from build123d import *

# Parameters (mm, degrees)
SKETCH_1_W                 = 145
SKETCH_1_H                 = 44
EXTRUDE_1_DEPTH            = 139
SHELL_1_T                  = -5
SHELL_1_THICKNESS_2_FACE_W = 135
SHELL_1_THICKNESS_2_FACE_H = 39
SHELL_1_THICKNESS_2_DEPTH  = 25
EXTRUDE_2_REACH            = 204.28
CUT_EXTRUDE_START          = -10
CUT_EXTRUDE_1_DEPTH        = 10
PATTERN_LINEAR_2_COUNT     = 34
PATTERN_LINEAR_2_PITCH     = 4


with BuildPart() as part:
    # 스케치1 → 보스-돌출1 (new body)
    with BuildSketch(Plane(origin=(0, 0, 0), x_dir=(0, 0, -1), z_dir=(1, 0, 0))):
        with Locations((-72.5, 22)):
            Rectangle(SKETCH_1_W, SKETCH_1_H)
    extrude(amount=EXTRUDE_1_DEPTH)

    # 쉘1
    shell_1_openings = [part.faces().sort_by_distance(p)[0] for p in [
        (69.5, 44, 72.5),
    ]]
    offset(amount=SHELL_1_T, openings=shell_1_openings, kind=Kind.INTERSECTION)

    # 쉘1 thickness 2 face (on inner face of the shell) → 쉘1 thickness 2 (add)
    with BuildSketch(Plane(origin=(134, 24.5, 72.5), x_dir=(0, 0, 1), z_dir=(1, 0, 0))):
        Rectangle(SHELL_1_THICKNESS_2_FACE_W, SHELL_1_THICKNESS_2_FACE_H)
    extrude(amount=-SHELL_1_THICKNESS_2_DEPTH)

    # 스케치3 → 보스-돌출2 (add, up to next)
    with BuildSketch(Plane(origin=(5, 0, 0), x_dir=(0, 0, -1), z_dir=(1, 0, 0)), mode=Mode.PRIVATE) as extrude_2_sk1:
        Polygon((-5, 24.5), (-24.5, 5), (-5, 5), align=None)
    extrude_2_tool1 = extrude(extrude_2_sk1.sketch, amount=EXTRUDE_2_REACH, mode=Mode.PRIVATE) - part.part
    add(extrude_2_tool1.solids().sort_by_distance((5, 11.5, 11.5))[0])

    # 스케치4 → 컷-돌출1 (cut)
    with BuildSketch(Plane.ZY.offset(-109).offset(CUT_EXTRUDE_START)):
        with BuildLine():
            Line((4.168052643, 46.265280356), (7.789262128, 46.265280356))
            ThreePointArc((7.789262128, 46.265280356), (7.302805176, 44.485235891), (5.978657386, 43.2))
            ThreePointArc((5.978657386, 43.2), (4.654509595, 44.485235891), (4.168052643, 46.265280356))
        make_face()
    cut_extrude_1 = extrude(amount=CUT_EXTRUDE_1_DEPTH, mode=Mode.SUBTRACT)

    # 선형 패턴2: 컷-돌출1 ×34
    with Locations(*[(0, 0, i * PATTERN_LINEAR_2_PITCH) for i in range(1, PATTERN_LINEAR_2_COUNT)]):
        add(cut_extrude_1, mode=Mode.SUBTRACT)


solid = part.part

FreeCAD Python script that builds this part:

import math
import FreeCAD as App
import Part
import Sketcher

V = App.Vector


def faces_at(feature, points):
    """Names of the faces that lie closest to the given points."""
    faces = feature.Shape.Faces
    near = lambda p: min(range(len(faces)), key=lambda i: faces[i].distToShape(Part.Vertex(*p))[0])
    return sorted({f"Face{near(p) + 1}" for p in points})


def add_polygon(sketch, points):
    """Adds a closed chain of lines whose ends are joined by coincident constraints."""
    first, n = sketch.GeometryCount, len(points)
    for a, b in zip(points, points[1:] + points[:1]):
        sketch.addGeometry(Part.LineSegment(App.Vector(*a, 0), App.Vector(*b, 0)), False)
    for i in range(n):
        sketch.addConstraint(Sketcher.Constraint("Coincident", first + i, 2, first + (i + 1) % n, 1))

doc = App.newDocument("Part")
params = doc.addObject("Spreadsheet::Sheet", "Params")
for row, (alias, value) in enumerate([
    ("sketch1_width", "44 mm"),
    ("sketch1_height", "145 mm"),
    ("pad1_length", "139 mm"),
    ("thickness_wall", "5 mm"),
    ("sketch2_width", "39 mm"),
    ("sketch2_height", "135 mm"),
    ("pad2_length", "25 mm"),
    ("sketch3_width", "19.5 mm"),
    ("sketch4_radius", "3.5 mm"),
    ("pocket1_length", "10 mm"),
    ("linearpattern_pitch", "4 mm"),
], start=1):
    params.set(f"A{row}", alias)
    params.set(f"B{row}", "=" + value)
    params.setAlias(f"B{row}", alias)

body = doc.addObject("PartDesign::Body", "Body")

sketch1 = body.newObject("Sketcher::SketchObject", "Sketch")
sketch1.AttachmentSupport = (doc.getObject("YZ_Plane"), [""])
sketch1.MapMode = "FlatFace"
add_polygon(sketch1, [(44, 145), (0, 145), (0, 0), (44, 0)])
sketch1.addConstraint([
    Sketcher.Constraint("Horizontal", 0),
    Sketcher.Constraint("Vertical", 1),
    Sketcher.Constraint("Horizontal", 2),
    Sketcher.Constraint("Vertical", 3),
    Sketcher.Constraint("Coincident", 1, 2, -1, 1),
    Sketcher.Constraint("DistanceX", 0, 2, 0, 1, 44.0),
    Sketcher.Constraint("DistanceY", 1, 2, 1, 1, 145.0),
])
sketch1.setExpression("Constraints[9]", "Params.sketch1_width")
sketch1.setExpression("Constraints[10]", "Params.sketch1_height")
pad1 = body.newObject("PartDesign::Pad", "Pad")
pad1.Profile = sketch1
pad1.setExpression("Length", "Params.pad1_length")
doc.recompute()

thickness = body.newObject("PartDesign::Thickness", "Thickness")
thickness.Base = (pad1, faces_at(pad1, [(69.5, 44, 72.5)]))
thickness.setExpression("Value", "Params.thickness_wall")
thickness.Reversed = True
thickness.Join = "Intersection"

sketch2 = body.newObject("Sketcher::SketchObject", "Sketch001")
sketch2.AttachmentSupport = (doc.getObject("YZ_Plane"), [""])
sketch2.MapMode = "FlatFace"
sketch2.AttachmentOffset = App.Placement(V(0, 0, 134), App.Rotation())
add_polygon(sketch2, [(5, 5), (44, 5), (44, 140), (5, 140)])
sketch2.addConstraint([
    Sketcher.Constraint("Horizontal", 0),
    Sketcher.Constraint("Vertical", 1),
    Sketcher.Constraint("Horizontal", 2),
    Sketcher.Constraint("Vertical", 3),
    Sketcher.Constraint("DistanceX", 0, 1, 0, 2, 39.0),
    Sketcher.Constraint("DistanceY", 1, 1, 1, 2, 135.0),
    Sketcher.Constraint("DistanceX", -1, 1, 0, 2, 44.0),
    Sketcher.Constraint("DistanceY", -1, 1, 0, 2, 5.0),
])
sketch2.setExpression("Constraints[8]", "Params.sketch2_width")
sketch2.setExpression("Constraints[9]", "Params.sketch2_height")
pad2 = body.newObject("PartDesign::Pad", "Pad001")
pad2.Profile = sketch2
pad2.setExpression("Length", "Params.pad2_length")
pad2.Reversed = True

sketch3 = body.newObject("Sketcher::SketchObject", "Sketch002")
sketch3.AttachmentSupport = (doc.getObject("YZ_Plane"), [""])
sketch3.MapMode = "FlatFace"
sketch3.AttachmentOffset = App.Placement(V(0, 0, 5), App.Rotation())
add_polygon(sketch3, [(24, 5), (5, 24), (5, 5)])
sketch3.addConstraint([
    Sketcher.Constraint("Vertical", 1),
    Sketcher.Constraint("Horizontal", 2),
    Sketcher.Constraint("Equal", 2, 1),
    Sketcher.Constraint("DistanceX", 2, 1, 2, 2, 19.5),
    Sketcher.Constraint("DistanceX", -1, 1, 0, 2, 5.0),
    Sketcher.Constraint("DistanceY", -1, 1, 1, 2, 5.0),
])
sketch3.setExpression("Constraints[6]", "Params.sketch3_width")
pad3 = body.newObject("PartDesign::Pad", "Pad002")
pad3.Profile = sketch3
pad3.Type = "UpToFirst"

sketch4 = body.newObject("Sketcher::SketchObject", "Sketch003")
sketch4.AttachmentSupport = (doc.getObject("YZ_Plane"), [""])
sketch4.MapMode = "FlatFace"
sketch4.AttachmentOffset = App.Placement(V(0, 0, 119), App.Rotation())
sketch4.addGeometry([
    Part.LineSegment(V(46.3, 7.8, 0), V(46.3, 4.2, 0)),
    Part.ArcOfCircle(Part.Circle(V(46.3, 7.7, 0), V(0, 0, 1), 3.5), math.radians(-151), math.radians(-90)),
    Part.ArcOfCircle(Part.Circle(V(46.3, 4.3, 0), V(0, 0, 1), 3.5), math.radians(90), math.radians(151)),
], False)
sketch4.addConstraint([
    Sketcher.Constraint("Coincident", 0, 2, 1, 2),
    Sketcher.Constraint("Coincident", 1, 1, 2, 2),
    Sketcher.Constraint("Coincident", 2, 1, 0, 1),
    Sketcher.Constraint("Vertical", 0),
    Sketcher.Constraint("Equal", 1, 2),
    Sketcher.Constraint("Vertical", 1, 3, 2, 3),
    Sketcher.Constraint("Vertical", 2, 3, 0, 2),
    Sketcher.Constraint("Radius", 1, 3.5),
    Sketcher.Constraint("DistanceX", -1, 1, 1, 1, 43.2),
    Sketcher.Constraint("DistanceY", 0, 2, 0, 1, 3.621209),
    Sketcher.Constraint("DistanceY", -1, 1, 1, 3, 7.668053),
])
sketch4.setExpression("Constraints[7]", "Params.sketch4_radius")
pocket1 = body.newObject("PartDesign::Pocket", "Pocket")
pocket1.Profile = sketch4
pocket1.setExpression("Length", "Params.pocket1_length")
doc.recompute()

linearpattern = body.newObject("PartDesign::LinearPattern", "LinearPattern")
linearpattern.Originals = [pocket1]
linearpattern.Direction = (doc.getObject("Z_Axis"), [""])
linearpattern.Mode = "offset"
linearpattern.setExpression("Offset", "Params.linearpattern_pitch")
linearpattern.Occurrences = 34
body.Tip = linearpattern

doc.recompute()
